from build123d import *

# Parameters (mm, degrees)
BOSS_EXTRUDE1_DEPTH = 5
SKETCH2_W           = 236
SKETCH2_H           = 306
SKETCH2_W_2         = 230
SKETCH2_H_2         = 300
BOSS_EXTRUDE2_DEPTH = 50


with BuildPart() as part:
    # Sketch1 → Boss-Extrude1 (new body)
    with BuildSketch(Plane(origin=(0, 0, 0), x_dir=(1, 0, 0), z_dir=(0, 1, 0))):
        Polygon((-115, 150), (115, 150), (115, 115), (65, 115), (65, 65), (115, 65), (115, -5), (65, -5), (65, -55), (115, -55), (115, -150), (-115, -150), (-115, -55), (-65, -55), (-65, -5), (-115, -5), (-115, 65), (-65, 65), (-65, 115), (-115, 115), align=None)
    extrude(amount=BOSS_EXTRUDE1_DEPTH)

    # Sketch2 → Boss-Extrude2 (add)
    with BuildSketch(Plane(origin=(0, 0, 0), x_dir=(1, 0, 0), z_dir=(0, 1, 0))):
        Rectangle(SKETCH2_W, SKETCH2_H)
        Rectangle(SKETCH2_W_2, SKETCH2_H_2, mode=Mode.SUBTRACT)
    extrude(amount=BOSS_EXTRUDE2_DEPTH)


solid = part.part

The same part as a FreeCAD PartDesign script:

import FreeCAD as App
import Part
import Sketcher

doc = App.newDocument("Part")
body = doc.addObject("PartDesign::Body", "Body")

sketch1 = body.newObject("Sketcher::SketchObject", "Sketch")
sketch1.AttachmentSupport = (doc.getObject("XZ_Plane"), [""])
sketch1.MapMode = "FlatFace"
sketch1.addGeometry([
    Part.LineSegment(App.Vector(115, -150, 0), App.Vector(-115, -150, 0)),
    Part.LineSegment(App.Vector(-115, -150, 0), App.Vector(-115, -115, 0)),
    Part.LineSegment(App.Vector(-115, -115, 0), App.Vector(-65, -115, 0)),
    Part.LineSegment(App.Vector(-65, -115, 0), App.Vector(-65, -65, 0)),
    Part.LineSegment(App.Vector(-65, -65, 0), App.Vector(-115, -65, 0)),
    Part.LineSegment(App.Vector(-115, -65, 0), App.Vector(-115, 5, 0)),
    Part.LineSegment(App.Vector(-115, 5, 0), App.Vector(-65, 5, 0)),
    Part.LineSegment(App.Vector(-65, 5, 0), App.Vector(-65, 55, 0)),
    Part.LineSegment(App.Vector(-65, 55, 0), App.Vector(-115, 55, 0)),
    Part.LineSegment(App.Vector(-115, 55, 0), App.Vector(-115, 150, 0)),
    Part.LineSegment(App.Vector(-115, 150, 0), App.Vector(115, 150, 0)),
    Part.LineSegment(App.Vector(115, 150, 0), App.Vector(115, 55, 0)),
    Part.LineSegment(App.Vector(115, 55, 0), App.Vector(65, 55, 0)),
    Part.LineSegment(App.Vector(65, 55, 0), App.Vector(65, 5, 0)),
    Part.LineSegment(App.Vector(65, 5, 0), App.Vector(115, 5, 0)),
    Part.LineSegment(App.Vector(115, 5, 0), App.Vector(115, -65, 0)),
    Part.LineSegment(App.Vector(115, -65, 0), App.Vector(65, -65, 0)),
    Part.LineSegment(App.Vector(65, -65, 0), App.Vector(65, -115, 0)),
    Part.LineSegment(App.Vector(65, -115, 0), App.Vector(115, -115, 0)),
    Part.LineSegment(App.Vector(115, -115, 0), App.Vector(115, -150, 0)),
], False)
sketch1.addConstraint([
    Sketcher.Constraint("Coincident", 0, 2, 1, 1),
    Sketcher.Constraint("Coincident", 1, 2, 2, 1),
    Sketcher.Constraint("Coincident", 2, 2, 3, 1),
    Sketcher.Constraint("Coincident", 3, 2, 4, 1),
    Sketcher.Constraint("Coincident", 4, 2, 5, 1),
    Sketcher.Constraint("Coincident", 5, 2, 6, 1),
    Sketcher.Constraint("Coincident", 6, 2, 7, 1),
    Sketcher.Constraint("Coincident", 7, 2, 8, 1),
    Sketcher.Constraint("Coincident", 8, 2, 9, 1),
    Sketcher.Constraint("Coincident", 9, 2, 10, 1),
    Sketcher.Constraint("Coincident", 10, 2, 11, 1),
    Sketcher.Constraint("Coincident", 11, 2, 12, 1),
    Sketcher.Constraint("Coincident", 12, 2, 13, 1),
    Sketcher.Constraint("Coincident", 13, 2, 14, 1),
    Sketcher.Constraint("Coincident", 14, 2, 15, 1),
    Sketcher.Constraint("Coincident", 15, 2, 16, 1),
    Sketcher.Constraint("Coincident", 16, 2, 17, 1),
    Sketcher.Constraint("Coincident", 17, 2, 18, 1),
    Sketcher.Constraint("Coincident", 18, 2, 19, 1),
    Sketcher.Constraint("Coincident", 19, 2, 0, 1),
    Sketcher.Constraint("Horizontal", 0),
    Sketcher.Constraint("Vertical", 1),
    Sketcher.Constraint("Horizontal", 2),
    Sketcher.Constraint("Vertical", 3),
    Sketcher.Constraint("Horizontal", 4),
    Sketcher.Constraint("Vertical", 5),
    Sketcher.Constraint("Horizontal", 6),
    Sketcher.Constraint("Vertical", 7),
    Sketcher.Constraint("Horizontal", 8),
    Sketcher.Constraint("Vertical", 9),
    Sketcher.Constraint("Horizontal", 10),
    Sketcher.Constraint("Vertical", 11),
    Sketcher.Constraint("Horizontal", 12),
    Sketcher.Constraint("Vertical", 13),
    Sketcher.Constraint("Horizontal", 14),
    Sketcher.Constraint("Vertical", 15),
    Sketcher.Constraint("Horizontal", 16),
    Sketcher.Constraint("Vertical", 17),
    Sketcher.Constraint("Horizontal", 18),
    Sketcher.Constraint("Vertical", 19),
    Sketcher.Constraint("Symmetric", 0, 2, 10, 2, -1, 1),
    Sketcher.Constraint("Symmetric", 8, 2, 11, 2, -2),
    Sketcher.Constraint("Symmetric", 6, 2, 13, 2, -2),
    Sketcher.Constraint("Symmetric", 4, 2, 15, 2, -2),
    Sketcher.Constraint("Symmetric", 2, 2, 17, 2, -2),
    Sketcher.Constraint("Vertical", 1, 2, 4, 2),
    Sketcher.Constraint("Vertical", 3, 2, 6, 2),
    Sketcher.Constraint("Vertical", 15, 2, 18, 2),
    Sketcher.Constraint("Equal", 18, 3),
    Sketcher.Constraint("Equal", 3, 7),
    Sketcher.Constraint("DistanceX", 0, 2, 0, 1, 230.0),
    Sketcher.Constraint("DistanceX", 2, 1, 2, 2, 50.0),
    Sketcher.Constraint("DistanceY", 1, 1, 1, 2, 35.0),
    Sketcher.Constraint("DistanceY", 5, 1, 5, 2, 70.0),
    Sketcher.Constraint("DistanceY", 9, 1, 9, 2, 95.0),
])
pad1 = body.newObject("PartDesign::Pad", "Pad")
pad1.Profile = sketch1
pad1.Length = 5
pad1.Reversed = True

sketch2 = body.newObject("Sketcher::SketchObject", "Sketch001")
sketch2.AttachmentSupport = (doc.getObject("XZ_Plane"), [""])
sketch2.MapMode = "FlatFace"
sketch2.addGeometry([
    Part.LineSegment(App.Vector(-118, -153, 0), App.Vector(-118, 153, 0)),
    Part.LineSegment(App.Vector(-118, 153, 0), App.Vector(118, 153, 0)),
    Part.LineSegment(App.Vector(118, 153, 0), App.Vector(118, -153, 0)),
    Part.LineSegment(App.Vector(118, -153, 0), App.Vector(-118, -153, 0)),
    Part.LineSegment(App.Vector(115, 150, 0), App.Vector(-115, 150, 0)),
    Part.LineSegment(App.Vector(-115, 150, 0), App.Vector(-115, -150, 0)),
    Part.LineSegment(App.Vector(-115, -150, 0), App.Vector(115, -150, 0)),
    Part.LineSegment(App.Vector(115, -150, 0), App.Vector(115, 150, 0)),
], False)
sketch2.addConstraint([
    Sketcher.Constraint("Coincident", 0, 2, 1, 1),
    Sketcher.Constraint("Coincident", 1, 2, 2, 1),
    Sketcher.Constraint("Coincident", 2, 2, 3, 1),
    Sketcher.Constraint("Coincident", 3, 2, 0, 1),
    Sketcher.Constraint("Coincident", 4, 2, 5, 1),
    Sketcher.Constraint("Coincident", 5, 2, 6, 1),
    Sketcher.Constraint("Coincident", 6, 2, 7, 1),
    Sketcher.Constraint("Coincident", 7, 2, 4, 1),
    Sketcher.Constraint("Vertical", 0),
    Sketcher.Constraint("Horizontal", 1),
    Sketcher.Constraint("Vertical", 2),
    Sketcher.Constraint("Horizontal", 3),
    Sketcher.Constraint("Horizontal", 4),
    Sketcher.Constraint("Vertical", 5),
    Sketcher.Constraint("Horizontal", 6),
    Sketcher.Constraint("Vertical", 7),
    Sketcher.Constraint("Symmetric", 0, 2, 2, 2, -1, 1),
    Sketcher.Constraint("Symmetric", 4, 2, 6, 2, -1, 1),
    Sketcher.Constraint("DistanceX", 1, 1, 1, 2, 236.0),
    Sketcher.Constraint("DistanceX", 4, 2, 4, 1, 230.0),
    Sketcher.Constraint("DistanceY", 0, 1, 0, 2, 306.0),
    Sketcher.Constraint("DistanceY", 5, 2, 5, 1, 300.0),
])
pad2 = body.newObject("PartDesign::Pad", "Pad001")
pad2.Profile = sketch2
pad2.Length = 50
pad2.Reversed = True

doc.recompute()
